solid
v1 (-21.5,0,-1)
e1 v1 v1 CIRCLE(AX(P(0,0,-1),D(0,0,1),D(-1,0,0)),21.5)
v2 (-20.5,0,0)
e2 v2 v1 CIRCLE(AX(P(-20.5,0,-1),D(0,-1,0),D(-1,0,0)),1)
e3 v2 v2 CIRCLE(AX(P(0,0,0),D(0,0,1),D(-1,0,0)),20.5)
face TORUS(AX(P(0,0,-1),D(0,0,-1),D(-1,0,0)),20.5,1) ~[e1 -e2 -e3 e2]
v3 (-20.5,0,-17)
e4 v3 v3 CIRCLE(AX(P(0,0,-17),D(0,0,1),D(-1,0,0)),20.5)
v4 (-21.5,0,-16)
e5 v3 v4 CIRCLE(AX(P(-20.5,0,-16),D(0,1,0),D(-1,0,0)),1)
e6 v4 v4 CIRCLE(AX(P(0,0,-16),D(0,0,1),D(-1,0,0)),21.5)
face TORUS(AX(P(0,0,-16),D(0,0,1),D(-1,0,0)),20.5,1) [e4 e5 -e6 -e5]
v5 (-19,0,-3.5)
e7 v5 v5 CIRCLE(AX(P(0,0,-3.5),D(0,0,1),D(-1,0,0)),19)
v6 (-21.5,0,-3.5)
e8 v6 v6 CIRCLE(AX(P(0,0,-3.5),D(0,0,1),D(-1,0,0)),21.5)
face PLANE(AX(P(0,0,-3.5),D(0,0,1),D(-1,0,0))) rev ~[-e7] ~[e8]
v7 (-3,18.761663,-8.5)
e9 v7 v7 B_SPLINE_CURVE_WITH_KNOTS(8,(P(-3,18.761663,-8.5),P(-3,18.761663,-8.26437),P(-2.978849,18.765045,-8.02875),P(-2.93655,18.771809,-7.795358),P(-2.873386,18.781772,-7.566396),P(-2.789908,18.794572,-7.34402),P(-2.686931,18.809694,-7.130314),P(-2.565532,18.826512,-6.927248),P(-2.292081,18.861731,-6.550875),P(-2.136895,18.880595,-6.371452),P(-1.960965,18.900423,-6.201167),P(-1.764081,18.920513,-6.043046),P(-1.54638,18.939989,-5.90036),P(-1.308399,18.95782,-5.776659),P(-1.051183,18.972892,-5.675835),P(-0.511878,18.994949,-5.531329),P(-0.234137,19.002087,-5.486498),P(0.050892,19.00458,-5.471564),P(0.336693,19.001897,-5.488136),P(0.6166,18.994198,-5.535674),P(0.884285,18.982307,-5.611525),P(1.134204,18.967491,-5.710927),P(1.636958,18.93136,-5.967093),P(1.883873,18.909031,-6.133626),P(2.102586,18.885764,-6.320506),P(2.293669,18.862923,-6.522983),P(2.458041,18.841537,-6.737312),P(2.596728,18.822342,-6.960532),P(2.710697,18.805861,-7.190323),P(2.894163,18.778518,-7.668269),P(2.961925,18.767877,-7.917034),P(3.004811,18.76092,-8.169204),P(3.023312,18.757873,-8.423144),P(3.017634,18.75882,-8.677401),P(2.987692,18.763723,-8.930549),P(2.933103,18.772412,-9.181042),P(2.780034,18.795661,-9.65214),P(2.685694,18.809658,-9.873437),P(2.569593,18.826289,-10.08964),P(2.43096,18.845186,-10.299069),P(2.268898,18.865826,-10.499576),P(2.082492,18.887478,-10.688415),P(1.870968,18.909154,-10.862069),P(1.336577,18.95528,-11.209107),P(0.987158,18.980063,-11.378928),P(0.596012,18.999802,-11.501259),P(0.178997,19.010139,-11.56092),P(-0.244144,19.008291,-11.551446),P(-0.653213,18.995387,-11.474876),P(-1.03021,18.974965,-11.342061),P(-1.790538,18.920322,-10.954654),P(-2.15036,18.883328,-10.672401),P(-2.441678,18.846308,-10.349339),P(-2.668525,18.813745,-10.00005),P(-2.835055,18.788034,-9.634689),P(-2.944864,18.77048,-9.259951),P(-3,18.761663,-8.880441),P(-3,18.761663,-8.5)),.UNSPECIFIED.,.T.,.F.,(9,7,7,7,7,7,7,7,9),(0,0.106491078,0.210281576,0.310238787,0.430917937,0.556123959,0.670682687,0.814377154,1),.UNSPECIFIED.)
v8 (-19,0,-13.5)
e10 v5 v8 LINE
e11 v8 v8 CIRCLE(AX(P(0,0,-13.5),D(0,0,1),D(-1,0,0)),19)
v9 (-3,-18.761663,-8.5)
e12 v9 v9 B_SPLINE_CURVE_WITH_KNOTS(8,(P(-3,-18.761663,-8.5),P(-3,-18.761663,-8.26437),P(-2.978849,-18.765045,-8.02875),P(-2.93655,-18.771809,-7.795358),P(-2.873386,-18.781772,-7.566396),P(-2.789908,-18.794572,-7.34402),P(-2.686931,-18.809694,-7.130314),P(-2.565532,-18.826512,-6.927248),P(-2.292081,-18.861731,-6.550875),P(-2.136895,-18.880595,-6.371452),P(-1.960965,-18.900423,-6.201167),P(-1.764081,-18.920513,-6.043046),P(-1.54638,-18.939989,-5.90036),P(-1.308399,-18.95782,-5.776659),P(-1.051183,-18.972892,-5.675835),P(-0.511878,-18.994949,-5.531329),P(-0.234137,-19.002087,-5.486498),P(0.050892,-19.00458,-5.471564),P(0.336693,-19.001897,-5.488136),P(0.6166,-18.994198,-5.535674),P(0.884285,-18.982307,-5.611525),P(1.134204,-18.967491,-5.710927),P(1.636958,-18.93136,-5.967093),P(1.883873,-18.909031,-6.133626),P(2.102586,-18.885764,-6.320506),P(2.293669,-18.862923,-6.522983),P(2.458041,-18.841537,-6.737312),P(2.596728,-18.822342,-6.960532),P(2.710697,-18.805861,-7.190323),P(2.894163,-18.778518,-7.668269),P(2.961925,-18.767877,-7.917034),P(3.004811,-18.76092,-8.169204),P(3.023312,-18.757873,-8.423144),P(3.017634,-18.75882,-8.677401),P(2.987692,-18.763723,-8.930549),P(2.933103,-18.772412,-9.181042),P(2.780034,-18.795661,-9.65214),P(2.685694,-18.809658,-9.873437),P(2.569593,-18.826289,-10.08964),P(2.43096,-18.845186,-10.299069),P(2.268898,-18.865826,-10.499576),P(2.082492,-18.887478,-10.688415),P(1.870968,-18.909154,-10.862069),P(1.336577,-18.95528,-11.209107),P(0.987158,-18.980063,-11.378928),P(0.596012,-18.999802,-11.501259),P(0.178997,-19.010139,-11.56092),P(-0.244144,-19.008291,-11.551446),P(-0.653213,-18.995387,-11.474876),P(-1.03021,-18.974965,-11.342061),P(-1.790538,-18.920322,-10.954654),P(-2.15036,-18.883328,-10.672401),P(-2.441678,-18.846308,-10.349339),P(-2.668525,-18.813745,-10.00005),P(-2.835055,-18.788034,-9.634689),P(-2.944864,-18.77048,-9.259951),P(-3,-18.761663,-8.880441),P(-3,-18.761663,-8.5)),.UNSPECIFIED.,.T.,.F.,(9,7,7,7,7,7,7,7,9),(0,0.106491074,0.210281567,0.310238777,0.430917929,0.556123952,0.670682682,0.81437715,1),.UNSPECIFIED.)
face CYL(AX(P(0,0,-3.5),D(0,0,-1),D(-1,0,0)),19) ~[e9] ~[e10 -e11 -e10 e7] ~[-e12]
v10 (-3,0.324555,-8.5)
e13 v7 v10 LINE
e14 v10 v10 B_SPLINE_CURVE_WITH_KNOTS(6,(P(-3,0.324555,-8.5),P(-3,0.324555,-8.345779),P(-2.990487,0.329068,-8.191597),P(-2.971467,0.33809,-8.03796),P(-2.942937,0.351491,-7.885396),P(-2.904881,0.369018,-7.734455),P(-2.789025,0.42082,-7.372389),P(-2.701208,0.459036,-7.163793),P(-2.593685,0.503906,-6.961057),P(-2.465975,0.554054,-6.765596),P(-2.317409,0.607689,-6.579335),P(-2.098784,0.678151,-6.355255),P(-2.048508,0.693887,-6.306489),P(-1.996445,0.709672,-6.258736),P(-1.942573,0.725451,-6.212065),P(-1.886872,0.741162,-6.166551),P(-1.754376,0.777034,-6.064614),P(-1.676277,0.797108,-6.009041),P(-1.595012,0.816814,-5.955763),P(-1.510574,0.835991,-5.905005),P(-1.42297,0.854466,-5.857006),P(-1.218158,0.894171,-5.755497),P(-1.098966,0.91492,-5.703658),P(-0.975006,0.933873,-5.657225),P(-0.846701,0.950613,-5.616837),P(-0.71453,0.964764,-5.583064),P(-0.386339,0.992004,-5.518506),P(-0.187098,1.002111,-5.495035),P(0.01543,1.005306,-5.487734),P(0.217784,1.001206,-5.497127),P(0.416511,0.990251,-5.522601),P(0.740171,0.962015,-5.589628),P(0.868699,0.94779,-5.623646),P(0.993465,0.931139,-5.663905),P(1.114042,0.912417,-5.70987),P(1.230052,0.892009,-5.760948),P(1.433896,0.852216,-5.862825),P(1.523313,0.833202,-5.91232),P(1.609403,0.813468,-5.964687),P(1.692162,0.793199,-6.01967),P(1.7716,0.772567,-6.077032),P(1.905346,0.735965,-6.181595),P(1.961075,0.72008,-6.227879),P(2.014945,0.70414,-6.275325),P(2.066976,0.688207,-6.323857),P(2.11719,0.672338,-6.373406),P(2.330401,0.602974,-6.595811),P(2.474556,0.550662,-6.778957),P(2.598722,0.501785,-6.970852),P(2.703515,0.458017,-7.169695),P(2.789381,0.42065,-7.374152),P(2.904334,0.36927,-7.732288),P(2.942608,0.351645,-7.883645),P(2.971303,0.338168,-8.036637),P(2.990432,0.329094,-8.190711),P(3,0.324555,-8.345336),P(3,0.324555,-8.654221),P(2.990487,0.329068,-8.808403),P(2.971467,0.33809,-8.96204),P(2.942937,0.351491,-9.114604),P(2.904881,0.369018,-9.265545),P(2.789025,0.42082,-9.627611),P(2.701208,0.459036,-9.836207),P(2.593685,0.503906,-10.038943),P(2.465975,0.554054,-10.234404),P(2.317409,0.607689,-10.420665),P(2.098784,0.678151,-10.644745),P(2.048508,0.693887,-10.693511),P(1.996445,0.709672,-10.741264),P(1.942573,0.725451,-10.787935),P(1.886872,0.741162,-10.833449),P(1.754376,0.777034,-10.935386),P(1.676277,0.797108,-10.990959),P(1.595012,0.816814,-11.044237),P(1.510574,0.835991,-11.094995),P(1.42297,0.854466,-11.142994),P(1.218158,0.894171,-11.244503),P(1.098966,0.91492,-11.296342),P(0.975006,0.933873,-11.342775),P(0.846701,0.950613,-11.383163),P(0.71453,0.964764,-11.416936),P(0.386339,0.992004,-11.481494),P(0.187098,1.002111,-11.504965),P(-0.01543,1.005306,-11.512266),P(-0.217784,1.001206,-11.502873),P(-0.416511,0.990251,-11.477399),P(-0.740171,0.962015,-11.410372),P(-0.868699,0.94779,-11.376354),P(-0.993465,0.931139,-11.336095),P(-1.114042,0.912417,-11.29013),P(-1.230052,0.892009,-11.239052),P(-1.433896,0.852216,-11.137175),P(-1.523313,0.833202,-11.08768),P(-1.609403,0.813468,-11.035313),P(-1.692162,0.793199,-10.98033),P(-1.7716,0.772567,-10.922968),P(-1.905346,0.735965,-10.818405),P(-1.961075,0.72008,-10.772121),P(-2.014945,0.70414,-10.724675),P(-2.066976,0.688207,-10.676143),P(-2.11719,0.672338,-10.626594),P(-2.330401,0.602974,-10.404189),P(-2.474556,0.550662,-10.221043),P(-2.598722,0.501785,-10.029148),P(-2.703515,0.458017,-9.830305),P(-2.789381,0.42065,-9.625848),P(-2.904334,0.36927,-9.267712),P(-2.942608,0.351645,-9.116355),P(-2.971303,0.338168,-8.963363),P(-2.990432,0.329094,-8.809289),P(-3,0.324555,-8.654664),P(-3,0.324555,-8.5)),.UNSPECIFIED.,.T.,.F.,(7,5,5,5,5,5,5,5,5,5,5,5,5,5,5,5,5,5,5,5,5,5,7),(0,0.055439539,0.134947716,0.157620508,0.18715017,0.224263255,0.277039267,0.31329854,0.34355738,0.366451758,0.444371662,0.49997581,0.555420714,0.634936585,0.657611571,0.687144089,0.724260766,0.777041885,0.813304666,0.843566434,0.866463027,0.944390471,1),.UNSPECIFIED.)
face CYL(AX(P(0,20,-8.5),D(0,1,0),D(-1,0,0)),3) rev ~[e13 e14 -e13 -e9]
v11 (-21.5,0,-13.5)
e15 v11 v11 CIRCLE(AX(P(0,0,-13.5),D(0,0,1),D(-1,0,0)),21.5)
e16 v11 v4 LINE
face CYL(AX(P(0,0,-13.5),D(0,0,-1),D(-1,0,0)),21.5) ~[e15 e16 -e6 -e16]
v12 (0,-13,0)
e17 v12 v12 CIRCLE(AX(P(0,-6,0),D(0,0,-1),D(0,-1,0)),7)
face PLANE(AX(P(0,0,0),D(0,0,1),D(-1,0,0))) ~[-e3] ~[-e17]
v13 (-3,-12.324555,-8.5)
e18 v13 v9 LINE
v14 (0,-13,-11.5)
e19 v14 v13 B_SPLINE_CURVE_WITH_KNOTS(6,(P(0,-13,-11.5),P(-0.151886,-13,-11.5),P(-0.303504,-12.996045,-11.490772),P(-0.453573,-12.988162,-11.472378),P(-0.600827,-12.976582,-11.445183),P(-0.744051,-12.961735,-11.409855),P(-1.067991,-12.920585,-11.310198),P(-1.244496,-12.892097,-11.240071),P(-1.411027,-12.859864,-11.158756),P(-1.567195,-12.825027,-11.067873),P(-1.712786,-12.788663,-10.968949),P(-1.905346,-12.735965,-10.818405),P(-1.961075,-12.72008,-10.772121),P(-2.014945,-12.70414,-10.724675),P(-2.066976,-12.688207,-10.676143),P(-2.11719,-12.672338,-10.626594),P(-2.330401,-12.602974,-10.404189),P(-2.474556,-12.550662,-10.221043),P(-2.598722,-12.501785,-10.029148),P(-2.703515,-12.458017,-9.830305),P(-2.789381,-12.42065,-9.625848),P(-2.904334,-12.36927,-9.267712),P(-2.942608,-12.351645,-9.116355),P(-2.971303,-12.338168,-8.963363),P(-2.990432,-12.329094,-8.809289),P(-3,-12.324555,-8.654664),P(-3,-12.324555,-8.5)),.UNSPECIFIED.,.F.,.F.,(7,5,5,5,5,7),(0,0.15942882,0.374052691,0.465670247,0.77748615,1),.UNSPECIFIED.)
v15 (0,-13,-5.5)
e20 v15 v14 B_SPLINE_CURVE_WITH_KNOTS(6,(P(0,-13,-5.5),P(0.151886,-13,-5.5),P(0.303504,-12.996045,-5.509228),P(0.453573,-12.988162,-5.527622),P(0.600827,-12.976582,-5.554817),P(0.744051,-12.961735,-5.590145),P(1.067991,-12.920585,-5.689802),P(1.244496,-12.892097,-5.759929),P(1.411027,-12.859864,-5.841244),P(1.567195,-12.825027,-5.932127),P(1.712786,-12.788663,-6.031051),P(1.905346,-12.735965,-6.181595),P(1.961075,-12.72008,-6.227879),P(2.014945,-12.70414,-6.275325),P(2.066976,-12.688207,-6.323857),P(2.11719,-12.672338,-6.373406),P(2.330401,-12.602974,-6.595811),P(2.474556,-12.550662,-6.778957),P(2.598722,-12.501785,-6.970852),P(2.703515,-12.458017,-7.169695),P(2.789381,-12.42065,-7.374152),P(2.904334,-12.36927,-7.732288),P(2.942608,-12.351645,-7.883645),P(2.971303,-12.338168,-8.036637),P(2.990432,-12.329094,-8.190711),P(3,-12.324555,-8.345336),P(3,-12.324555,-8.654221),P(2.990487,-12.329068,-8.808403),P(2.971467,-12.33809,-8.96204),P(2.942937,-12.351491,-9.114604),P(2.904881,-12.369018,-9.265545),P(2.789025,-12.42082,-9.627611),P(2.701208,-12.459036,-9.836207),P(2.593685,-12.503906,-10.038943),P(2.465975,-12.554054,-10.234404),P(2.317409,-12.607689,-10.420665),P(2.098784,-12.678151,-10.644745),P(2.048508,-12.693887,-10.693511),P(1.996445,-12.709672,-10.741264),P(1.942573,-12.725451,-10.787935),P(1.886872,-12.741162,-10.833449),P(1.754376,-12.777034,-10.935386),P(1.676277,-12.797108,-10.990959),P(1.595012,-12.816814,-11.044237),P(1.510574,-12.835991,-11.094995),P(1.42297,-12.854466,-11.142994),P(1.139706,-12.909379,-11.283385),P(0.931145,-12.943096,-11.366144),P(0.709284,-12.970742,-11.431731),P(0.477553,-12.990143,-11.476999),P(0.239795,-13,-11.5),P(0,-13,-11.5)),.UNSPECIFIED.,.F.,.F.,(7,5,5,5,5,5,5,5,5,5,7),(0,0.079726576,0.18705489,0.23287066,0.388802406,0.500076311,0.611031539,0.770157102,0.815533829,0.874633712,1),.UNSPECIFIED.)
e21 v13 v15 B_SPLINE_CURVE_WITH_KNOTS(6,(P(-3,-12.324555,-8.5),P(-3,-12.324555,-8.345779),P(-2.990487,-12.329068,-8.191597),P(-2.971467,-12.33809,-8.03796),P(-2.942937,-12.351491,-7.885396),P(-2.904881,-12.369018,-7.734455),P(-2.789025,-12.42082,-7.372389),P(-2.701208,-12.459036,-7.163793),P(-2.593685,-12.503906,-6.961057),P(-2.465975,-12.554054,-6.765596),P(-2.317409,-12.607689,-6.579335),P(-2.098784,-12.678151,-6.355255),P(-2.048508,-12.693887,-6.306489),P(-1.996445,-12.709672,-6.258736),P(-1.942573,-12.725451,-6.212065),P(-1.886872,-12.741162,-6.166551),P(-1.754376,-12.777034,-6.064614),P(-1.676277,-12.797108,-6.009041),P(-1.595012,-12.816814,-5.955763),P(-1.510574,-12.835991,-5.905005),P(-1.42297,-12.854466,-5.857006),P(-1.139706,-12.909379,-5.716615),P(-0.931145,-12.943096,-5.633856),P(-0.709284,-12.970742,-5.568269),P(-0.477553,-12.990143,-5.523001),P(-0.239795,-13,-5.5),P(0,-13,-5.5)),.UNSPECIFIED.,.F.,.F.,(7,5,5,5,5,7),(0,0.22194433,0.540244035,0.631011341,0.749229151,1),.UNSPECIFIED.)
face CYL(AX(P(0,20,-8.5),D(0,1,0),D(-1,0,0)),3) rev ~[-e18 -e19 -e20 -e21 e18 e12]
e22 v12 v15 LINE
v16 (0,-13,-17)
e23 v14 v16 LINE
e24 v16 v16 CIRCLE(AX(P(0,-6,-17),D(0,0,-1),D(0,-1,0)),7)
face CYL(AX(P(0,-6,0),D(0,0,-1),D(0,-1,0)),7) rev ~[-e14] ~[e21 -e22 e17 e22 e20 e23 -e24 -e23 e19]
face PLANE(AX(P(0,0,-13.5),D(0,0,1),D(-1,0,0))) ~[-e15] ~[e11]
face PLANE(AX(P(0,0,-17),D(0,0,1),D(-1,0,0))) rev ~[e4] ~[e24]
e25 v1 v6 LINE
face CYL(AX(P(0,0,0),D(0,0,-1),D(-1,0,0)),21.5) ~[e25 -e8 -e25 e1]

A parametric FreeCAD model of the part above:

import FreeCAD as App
import Part
import Sketcher

V = App.Vector
Q = App.Units.Quantity


def edges_at(feature, points):
    """Names of the edges that pass closest to the given points."""
    edges = feature.Shape.Edges
    near = lambda p: min(range(len(edges)), key=lambda i: edges[i].distToShape(Part.Vertex(*p))[0])
    return sorted({f"Edge{near(p) + 1}" for p in points})


def add_polygon(sketch, points):
    """Adds a closed chain of lines whose ends are joined by coincident constraints."""
    first, n = sketch.GeometryCount, len(points)
    for a, b in zip(points, points[1:] + points[:1]):
        sketch.addGeometry(Part.LineSegment(App.Vector(*a, 0), App.Vector(*b, 0)), False)
    for i in range(n):
        sketch.addConstraint(Sketcher.Constraint("Coincident", first + i, 2, first + (i + 1) % n, 1))

doc = App.newDocument("Part")
body = doc.addObject("PartDesign::Body", "Body")

# Sketch on XZ plane
sketch1 = doc.addObject("Sketcher::SketchObject", "Sketch")
body.addObject(sketch1)
sketch1.AttachmentSupport = (doc.XZ_Plane, [""])
sketch1.MapMode = "FlatFace"
add_polygon(sketch1, [(-21.5, 0), (0, 0), (0, -17), (-21.5, -17), (-21.5, -13.5), (-19, -13.5), (-19, -3.5), (-21.5, -3.5)])  # lines 0-7
sketch1.addConstraint(Sketcher.Constraint("Horizontal", 0))
sketch1.addConstraint(Sketcher.Constraint("Vertical", 1))
sketch1.addConstraint(Sketcher.Constraint("Horizontal", 2))
sketch1.addConstraint(Sketcher.Constraint("Vertical", 3))
sketch1.addConstraint(Sketcher.Constraint("Horizontal", 4))
sketch1.addConstraint(Sketcher.Constraint("Vertical", 5))
sketch1.addConstraint(Sketcher.Constraint("Horizontal", 6))
sketch1.addConstraint(Sketcher.Constraint("Vertical", 7))
sketch1.addConstraint(Sketcher.Constraint("Coincident", 0, 2, -1, 1))
sketch1.addConstraint(Sketcher.Constraint("Vertical", 3, 2, 6, 2))
sketch1.addConstraint(Sketcher.Constraint("Equal", 3, 7))
sketch1.addConstraint(Sketcher.Constraint("DistanceY", 1, 2, 1, 1, Q("17 mm")))
sketch1.addConstraint(Sketcher.Constraint("DistanceY", 3, 1, 3, 2, Q("3.5 mm")))
sketch1.addConstraint(Sketcher.Constraint("DistanceX", 0, 1, 0, 2, Q("21.5 mm")))
sketch1.addConstraint(Sketcher.Constraint("DistanceX", 4, 1, 4, 2, Q("2.5 mm")))
revolution = doc.addObject("PartDesign::Revolution", "Revolution")
body.addObject(revolution)
revolution.Profile = sketch1
revolution.ReferenceAxis = (sketch1, ["V_Axis"])
revolution.Angle = 360

# Sketch on XY plane
sketch2 = doc.addObject("Sketcher::SketchObject", "Sketch001")
body.addObject(sketch2)
sketch2.AttachmentSupport = (doc.XY_Plane, [""])
sketch2.MapMode = "FlatFace"
sketch2.addGeometry(Part.Circle(V(0, -6, 0), V(0, 0, 1), 7), False)
sketch2.addConstraint(Sketcher.Constraint("PointOnObject", 0, 3, -2))
sketch2.addConstraint(Sketcher.Constraint("Diameter", 0, Q("14 mm")))
sketch2.addConstraint(Sketcher.Constraint("DistanceY", 0, 3, -1, 1, Q("6 mm")))
doc.recompute()
hole = doc.addObject("PartDesign::Hole", "Hole")
body.addObject(hole)
hole.Profile = sketch2
hole.ThreadType = "None"
hole.Diameter = 14
hole.DepthType = "Dimension"
hole.Depth = 17
hole.DrillPoint = "Flat"
doc.recompute()

fillet = doc.addObject("PartDesign::Fillet", "Fillet")
body.addObject(fillet)
fillet.Base = (hole, edges_at(hole, [(21.5, 0, 0), (21.5, 0, -17)]))
fillet.Radius = 1

# Sketch on XZ plane
sketch3 = doc.addObject("Sketcher::SketchObject", "Sketch002")
body.addObject(sketch3)
sketch3.AttachmentSupport = (doc.XZ_Plane, [""])
sketch3.MapMode = "FlatFace"
sketch3.AttachmentOffset = App.Placement(V(0, 0, -20), App.Rotation())
sketch3.addGeometry(Part.Circle(V(0, -8.5, 0), V(0, 0, 1), 3), False)
sketch3.addConstraint(Sketcher.Constraint("PointOnObject", 0, 3, -2))
sketch3.addConstraint(Sketcher.Constraint("Diameter", 0, Q("6 mm")))
sketch3.addConstraint(Sketcher.Constraint("DistanceY", 0, 3, -1, 1, Q("8.5 mm")))
pocket1 = doc.addObject("PartDesign::Pocket", "Pocket")
body.addObject(pocket1)
pocket1.Profile = sketch3
pocket1.Type = "ThroughAll"
pocket1.Reversed = True

doc.recompute()
